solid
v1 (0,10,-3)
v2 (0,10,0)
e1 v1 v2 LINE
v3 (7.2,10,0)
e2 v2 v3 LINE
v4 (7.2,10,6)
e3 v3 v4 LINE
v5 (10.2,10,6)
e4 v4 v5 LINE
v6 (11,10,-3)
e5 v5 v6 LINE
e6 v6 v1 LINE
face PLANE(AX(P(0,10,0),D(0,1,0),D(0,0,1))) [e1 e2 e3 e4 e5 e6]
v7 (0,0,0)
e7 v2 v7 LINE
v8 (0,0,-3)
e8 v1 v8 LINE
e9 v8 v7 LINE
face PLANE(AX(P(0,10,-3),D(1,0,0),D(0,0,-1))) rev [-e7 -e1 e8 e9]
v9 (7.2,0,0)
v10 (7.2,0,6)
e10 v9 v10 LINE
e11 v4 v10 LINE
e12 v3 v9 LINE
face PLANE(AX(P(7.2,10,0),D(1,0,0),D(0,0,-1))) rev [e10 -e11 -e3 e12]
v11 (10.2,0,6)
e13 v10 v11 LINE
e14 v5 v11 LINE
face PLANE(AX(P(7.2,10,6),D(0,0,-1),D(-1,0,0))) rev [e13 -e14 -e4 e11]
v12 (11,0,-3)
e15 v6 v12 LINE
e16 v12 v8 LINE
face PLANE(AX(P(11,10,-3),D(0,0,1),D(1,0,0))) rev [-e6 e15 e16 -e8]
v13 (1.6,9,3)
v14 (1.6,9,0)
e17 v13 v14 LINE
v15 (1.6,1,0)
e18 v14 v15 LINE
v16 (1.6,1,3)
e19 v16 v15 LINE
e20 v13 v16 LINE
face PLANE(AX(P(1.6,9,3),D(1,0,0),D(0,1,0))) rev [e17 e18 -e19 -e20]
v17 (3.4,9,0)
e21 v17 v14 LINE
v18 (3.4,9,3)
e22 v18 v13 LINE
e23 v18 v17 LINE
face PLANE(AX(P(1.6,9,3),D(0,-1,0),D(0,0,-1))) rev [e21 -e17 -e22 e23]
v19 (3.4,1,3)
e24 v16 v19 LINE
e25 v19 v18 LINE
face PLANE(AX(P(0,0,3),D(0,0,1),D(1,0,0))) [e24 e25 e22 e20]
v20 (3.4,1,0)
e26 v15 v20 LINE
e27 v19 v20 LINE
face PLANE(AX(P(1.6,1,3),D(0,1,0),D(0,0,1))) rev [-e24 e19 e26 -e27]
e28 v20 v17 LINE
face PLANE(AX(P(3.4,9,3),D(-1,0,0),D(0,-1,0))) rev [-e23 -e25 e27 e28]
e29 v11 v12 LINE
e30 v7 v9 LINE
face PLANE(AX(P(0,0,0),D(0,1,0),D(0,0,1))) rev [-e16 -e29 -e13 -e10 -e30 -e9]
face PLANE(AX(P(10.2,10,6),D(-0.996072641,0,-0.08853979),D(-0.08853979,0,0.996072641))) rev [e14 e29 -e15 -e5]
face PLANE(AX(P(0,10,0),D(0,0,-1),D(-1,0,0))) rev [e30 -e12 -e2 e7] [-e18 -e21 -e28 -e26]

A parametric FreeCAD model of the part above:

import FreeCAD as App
import Part
import Sketcher
Q = App.Units.Quantity

doc = App.newDocument("Part")
body = doc.addObject("PartDesign::Body", "Body")

# Sketch on XZ plane
sketch1 = body.newObject("Sketcher::SketchObject", "Sketch")
sketch1.AttachmentSupport = (doc.getObject("XZ_Plane"), [""])
sketch1.MapMode = "FlatFace"
sketch1.addGeometry([
    Part.LineSegment(App.Vector(0, 0, 0), App.Vector(7.2, 0, 0)),  # 0
    Part.LineSegment(App.Vector(7.2, 0, 0), App.Vector(7.2, 6, 0)),  # 1
    Part.LineSegment(App.Vector(7.2, 6, 0), App.Vector(10.2, 6, 0)),  # 2
    Part.LineSegment(App.Vector(10.2, 6, 0), App.Vector(11, -3, 0)),  # 3
    Part.LineSegment(App.Vector(11, -3, 0), App.Vector(0, -3, 0)),  # 4
    Part.LineSegment(App.Vector(0, -3, 0), App.Vector(0, 0, 0)),  # 5
], False)
sketch1.addConstraint([
    Sketcher.Constraint("Coincident", 0, 2, 1, 1),
    Sketcher.Constraint("Coincident", 1, 2, 2, 1),
    Sketcher.Constraint("Coincident", 2, 2, 3, 1),
    Sketcher.Constraint("Coincident", 3, 2, 4, 1),
    Sketcher.Constraint("Coincident", 4, 2, 5, 1),
    Sketcher.Constraint("Coincident", 5, 2, 0, 1),
    Sketcher.Constraint("Horizontal", 0),
    Sketcher.Constraint("Vertical", 1),
    Sketcher.Constraint("Horizontal", 2),
    Sketcher.Constraint("Horizontal", 4),
    Sketcher.Constraint("Vertical", 5),
    Sketcher.Constraint("Coincident", 5, 2, -1, 1),
    Sketcher.Constraint("Equal", 2, 5),
    Sketcher.Constraint("DistanceX", 2, 1, 2, 2, Q("3 mm")),
    Sketcher.Constraint("DistanceX", 4, 2, 4, 1, Q("11 mm")),
    Sketcher.Constraint("DistanceY", 1, 1, 1, 2, Q("6 mm")),
    Sketcher.Constraint("DistanceX", 0, 1, 0, 2, Q("7.2 mm")),
])
pad1 = body.newObject("PartDesign::Pad", "Pad")
pad1.Profile = sketch1
pad1.Length = 10
pad1.Reversed = True

# Sketch on XY plane
sketch2 = body.newObject("Sketcher::SketchObject", "Sketch001")
sketch2.AttachmentSupport = (doc.getObject("XY_Plane"), [""])
sketch2.MapMode = "FlatFace"
sketch2.addGeometry([
    Part.LineSegment(App.Vector(1.6, 9, 0), App.Vector(1.6, 1, 0)),
    Part.LineSegment(App.Vector(1.6, 1, 0), App.Vector(3.4, 1, 0)),
    Part.LineSegment(App.Vector(3.4, 1, 0), App.Vector(3.4, 9, 0)),
    Part.LineSegment(App.Vector(3.4, 9, 0), App.Vector(1.6, 9, 0)),
], False)
sketch2.addConstraint([
    Sketcher.Constraint("Coincident", 0, 2, 1, 1),
    Sketcher.Constraint("Coincident", 1, 2, 2, 1),
    Sketcher.Constraint("Coincident", 2, 2, 3, 1),
    Sketcher.Constraint("Coincident", 3, 2, 0, 1),
    Sketcher.Constraint("Vertical", 0),
    Sketcher.Constraint("Horizontal", 1),
    Sketcher.Constraint("Vertical", 2),
    Sketcher.Constraint("Horizontal", 3),
    Sketcher.Constraint("DistanceY", 0, 2, 0, 1, Q("8 mm")),
    Sketcher.Constraint("DistanceX", 1, 1, 1, 2, Q("1.8 mm")),
    Sketcher.Constraint("DistanceY", -1, 1, 0, 2, Q("1 mm")),
    Sketcher.Constraint("DistanceX", -1, 1, 0, 2, Q("1.6 mm")),
])
pad2 = body.newObject("PartDesign::Pad", "Pad001")
pad2.Profile = sketch2
pad2.Length = 3

doc.recompute()
